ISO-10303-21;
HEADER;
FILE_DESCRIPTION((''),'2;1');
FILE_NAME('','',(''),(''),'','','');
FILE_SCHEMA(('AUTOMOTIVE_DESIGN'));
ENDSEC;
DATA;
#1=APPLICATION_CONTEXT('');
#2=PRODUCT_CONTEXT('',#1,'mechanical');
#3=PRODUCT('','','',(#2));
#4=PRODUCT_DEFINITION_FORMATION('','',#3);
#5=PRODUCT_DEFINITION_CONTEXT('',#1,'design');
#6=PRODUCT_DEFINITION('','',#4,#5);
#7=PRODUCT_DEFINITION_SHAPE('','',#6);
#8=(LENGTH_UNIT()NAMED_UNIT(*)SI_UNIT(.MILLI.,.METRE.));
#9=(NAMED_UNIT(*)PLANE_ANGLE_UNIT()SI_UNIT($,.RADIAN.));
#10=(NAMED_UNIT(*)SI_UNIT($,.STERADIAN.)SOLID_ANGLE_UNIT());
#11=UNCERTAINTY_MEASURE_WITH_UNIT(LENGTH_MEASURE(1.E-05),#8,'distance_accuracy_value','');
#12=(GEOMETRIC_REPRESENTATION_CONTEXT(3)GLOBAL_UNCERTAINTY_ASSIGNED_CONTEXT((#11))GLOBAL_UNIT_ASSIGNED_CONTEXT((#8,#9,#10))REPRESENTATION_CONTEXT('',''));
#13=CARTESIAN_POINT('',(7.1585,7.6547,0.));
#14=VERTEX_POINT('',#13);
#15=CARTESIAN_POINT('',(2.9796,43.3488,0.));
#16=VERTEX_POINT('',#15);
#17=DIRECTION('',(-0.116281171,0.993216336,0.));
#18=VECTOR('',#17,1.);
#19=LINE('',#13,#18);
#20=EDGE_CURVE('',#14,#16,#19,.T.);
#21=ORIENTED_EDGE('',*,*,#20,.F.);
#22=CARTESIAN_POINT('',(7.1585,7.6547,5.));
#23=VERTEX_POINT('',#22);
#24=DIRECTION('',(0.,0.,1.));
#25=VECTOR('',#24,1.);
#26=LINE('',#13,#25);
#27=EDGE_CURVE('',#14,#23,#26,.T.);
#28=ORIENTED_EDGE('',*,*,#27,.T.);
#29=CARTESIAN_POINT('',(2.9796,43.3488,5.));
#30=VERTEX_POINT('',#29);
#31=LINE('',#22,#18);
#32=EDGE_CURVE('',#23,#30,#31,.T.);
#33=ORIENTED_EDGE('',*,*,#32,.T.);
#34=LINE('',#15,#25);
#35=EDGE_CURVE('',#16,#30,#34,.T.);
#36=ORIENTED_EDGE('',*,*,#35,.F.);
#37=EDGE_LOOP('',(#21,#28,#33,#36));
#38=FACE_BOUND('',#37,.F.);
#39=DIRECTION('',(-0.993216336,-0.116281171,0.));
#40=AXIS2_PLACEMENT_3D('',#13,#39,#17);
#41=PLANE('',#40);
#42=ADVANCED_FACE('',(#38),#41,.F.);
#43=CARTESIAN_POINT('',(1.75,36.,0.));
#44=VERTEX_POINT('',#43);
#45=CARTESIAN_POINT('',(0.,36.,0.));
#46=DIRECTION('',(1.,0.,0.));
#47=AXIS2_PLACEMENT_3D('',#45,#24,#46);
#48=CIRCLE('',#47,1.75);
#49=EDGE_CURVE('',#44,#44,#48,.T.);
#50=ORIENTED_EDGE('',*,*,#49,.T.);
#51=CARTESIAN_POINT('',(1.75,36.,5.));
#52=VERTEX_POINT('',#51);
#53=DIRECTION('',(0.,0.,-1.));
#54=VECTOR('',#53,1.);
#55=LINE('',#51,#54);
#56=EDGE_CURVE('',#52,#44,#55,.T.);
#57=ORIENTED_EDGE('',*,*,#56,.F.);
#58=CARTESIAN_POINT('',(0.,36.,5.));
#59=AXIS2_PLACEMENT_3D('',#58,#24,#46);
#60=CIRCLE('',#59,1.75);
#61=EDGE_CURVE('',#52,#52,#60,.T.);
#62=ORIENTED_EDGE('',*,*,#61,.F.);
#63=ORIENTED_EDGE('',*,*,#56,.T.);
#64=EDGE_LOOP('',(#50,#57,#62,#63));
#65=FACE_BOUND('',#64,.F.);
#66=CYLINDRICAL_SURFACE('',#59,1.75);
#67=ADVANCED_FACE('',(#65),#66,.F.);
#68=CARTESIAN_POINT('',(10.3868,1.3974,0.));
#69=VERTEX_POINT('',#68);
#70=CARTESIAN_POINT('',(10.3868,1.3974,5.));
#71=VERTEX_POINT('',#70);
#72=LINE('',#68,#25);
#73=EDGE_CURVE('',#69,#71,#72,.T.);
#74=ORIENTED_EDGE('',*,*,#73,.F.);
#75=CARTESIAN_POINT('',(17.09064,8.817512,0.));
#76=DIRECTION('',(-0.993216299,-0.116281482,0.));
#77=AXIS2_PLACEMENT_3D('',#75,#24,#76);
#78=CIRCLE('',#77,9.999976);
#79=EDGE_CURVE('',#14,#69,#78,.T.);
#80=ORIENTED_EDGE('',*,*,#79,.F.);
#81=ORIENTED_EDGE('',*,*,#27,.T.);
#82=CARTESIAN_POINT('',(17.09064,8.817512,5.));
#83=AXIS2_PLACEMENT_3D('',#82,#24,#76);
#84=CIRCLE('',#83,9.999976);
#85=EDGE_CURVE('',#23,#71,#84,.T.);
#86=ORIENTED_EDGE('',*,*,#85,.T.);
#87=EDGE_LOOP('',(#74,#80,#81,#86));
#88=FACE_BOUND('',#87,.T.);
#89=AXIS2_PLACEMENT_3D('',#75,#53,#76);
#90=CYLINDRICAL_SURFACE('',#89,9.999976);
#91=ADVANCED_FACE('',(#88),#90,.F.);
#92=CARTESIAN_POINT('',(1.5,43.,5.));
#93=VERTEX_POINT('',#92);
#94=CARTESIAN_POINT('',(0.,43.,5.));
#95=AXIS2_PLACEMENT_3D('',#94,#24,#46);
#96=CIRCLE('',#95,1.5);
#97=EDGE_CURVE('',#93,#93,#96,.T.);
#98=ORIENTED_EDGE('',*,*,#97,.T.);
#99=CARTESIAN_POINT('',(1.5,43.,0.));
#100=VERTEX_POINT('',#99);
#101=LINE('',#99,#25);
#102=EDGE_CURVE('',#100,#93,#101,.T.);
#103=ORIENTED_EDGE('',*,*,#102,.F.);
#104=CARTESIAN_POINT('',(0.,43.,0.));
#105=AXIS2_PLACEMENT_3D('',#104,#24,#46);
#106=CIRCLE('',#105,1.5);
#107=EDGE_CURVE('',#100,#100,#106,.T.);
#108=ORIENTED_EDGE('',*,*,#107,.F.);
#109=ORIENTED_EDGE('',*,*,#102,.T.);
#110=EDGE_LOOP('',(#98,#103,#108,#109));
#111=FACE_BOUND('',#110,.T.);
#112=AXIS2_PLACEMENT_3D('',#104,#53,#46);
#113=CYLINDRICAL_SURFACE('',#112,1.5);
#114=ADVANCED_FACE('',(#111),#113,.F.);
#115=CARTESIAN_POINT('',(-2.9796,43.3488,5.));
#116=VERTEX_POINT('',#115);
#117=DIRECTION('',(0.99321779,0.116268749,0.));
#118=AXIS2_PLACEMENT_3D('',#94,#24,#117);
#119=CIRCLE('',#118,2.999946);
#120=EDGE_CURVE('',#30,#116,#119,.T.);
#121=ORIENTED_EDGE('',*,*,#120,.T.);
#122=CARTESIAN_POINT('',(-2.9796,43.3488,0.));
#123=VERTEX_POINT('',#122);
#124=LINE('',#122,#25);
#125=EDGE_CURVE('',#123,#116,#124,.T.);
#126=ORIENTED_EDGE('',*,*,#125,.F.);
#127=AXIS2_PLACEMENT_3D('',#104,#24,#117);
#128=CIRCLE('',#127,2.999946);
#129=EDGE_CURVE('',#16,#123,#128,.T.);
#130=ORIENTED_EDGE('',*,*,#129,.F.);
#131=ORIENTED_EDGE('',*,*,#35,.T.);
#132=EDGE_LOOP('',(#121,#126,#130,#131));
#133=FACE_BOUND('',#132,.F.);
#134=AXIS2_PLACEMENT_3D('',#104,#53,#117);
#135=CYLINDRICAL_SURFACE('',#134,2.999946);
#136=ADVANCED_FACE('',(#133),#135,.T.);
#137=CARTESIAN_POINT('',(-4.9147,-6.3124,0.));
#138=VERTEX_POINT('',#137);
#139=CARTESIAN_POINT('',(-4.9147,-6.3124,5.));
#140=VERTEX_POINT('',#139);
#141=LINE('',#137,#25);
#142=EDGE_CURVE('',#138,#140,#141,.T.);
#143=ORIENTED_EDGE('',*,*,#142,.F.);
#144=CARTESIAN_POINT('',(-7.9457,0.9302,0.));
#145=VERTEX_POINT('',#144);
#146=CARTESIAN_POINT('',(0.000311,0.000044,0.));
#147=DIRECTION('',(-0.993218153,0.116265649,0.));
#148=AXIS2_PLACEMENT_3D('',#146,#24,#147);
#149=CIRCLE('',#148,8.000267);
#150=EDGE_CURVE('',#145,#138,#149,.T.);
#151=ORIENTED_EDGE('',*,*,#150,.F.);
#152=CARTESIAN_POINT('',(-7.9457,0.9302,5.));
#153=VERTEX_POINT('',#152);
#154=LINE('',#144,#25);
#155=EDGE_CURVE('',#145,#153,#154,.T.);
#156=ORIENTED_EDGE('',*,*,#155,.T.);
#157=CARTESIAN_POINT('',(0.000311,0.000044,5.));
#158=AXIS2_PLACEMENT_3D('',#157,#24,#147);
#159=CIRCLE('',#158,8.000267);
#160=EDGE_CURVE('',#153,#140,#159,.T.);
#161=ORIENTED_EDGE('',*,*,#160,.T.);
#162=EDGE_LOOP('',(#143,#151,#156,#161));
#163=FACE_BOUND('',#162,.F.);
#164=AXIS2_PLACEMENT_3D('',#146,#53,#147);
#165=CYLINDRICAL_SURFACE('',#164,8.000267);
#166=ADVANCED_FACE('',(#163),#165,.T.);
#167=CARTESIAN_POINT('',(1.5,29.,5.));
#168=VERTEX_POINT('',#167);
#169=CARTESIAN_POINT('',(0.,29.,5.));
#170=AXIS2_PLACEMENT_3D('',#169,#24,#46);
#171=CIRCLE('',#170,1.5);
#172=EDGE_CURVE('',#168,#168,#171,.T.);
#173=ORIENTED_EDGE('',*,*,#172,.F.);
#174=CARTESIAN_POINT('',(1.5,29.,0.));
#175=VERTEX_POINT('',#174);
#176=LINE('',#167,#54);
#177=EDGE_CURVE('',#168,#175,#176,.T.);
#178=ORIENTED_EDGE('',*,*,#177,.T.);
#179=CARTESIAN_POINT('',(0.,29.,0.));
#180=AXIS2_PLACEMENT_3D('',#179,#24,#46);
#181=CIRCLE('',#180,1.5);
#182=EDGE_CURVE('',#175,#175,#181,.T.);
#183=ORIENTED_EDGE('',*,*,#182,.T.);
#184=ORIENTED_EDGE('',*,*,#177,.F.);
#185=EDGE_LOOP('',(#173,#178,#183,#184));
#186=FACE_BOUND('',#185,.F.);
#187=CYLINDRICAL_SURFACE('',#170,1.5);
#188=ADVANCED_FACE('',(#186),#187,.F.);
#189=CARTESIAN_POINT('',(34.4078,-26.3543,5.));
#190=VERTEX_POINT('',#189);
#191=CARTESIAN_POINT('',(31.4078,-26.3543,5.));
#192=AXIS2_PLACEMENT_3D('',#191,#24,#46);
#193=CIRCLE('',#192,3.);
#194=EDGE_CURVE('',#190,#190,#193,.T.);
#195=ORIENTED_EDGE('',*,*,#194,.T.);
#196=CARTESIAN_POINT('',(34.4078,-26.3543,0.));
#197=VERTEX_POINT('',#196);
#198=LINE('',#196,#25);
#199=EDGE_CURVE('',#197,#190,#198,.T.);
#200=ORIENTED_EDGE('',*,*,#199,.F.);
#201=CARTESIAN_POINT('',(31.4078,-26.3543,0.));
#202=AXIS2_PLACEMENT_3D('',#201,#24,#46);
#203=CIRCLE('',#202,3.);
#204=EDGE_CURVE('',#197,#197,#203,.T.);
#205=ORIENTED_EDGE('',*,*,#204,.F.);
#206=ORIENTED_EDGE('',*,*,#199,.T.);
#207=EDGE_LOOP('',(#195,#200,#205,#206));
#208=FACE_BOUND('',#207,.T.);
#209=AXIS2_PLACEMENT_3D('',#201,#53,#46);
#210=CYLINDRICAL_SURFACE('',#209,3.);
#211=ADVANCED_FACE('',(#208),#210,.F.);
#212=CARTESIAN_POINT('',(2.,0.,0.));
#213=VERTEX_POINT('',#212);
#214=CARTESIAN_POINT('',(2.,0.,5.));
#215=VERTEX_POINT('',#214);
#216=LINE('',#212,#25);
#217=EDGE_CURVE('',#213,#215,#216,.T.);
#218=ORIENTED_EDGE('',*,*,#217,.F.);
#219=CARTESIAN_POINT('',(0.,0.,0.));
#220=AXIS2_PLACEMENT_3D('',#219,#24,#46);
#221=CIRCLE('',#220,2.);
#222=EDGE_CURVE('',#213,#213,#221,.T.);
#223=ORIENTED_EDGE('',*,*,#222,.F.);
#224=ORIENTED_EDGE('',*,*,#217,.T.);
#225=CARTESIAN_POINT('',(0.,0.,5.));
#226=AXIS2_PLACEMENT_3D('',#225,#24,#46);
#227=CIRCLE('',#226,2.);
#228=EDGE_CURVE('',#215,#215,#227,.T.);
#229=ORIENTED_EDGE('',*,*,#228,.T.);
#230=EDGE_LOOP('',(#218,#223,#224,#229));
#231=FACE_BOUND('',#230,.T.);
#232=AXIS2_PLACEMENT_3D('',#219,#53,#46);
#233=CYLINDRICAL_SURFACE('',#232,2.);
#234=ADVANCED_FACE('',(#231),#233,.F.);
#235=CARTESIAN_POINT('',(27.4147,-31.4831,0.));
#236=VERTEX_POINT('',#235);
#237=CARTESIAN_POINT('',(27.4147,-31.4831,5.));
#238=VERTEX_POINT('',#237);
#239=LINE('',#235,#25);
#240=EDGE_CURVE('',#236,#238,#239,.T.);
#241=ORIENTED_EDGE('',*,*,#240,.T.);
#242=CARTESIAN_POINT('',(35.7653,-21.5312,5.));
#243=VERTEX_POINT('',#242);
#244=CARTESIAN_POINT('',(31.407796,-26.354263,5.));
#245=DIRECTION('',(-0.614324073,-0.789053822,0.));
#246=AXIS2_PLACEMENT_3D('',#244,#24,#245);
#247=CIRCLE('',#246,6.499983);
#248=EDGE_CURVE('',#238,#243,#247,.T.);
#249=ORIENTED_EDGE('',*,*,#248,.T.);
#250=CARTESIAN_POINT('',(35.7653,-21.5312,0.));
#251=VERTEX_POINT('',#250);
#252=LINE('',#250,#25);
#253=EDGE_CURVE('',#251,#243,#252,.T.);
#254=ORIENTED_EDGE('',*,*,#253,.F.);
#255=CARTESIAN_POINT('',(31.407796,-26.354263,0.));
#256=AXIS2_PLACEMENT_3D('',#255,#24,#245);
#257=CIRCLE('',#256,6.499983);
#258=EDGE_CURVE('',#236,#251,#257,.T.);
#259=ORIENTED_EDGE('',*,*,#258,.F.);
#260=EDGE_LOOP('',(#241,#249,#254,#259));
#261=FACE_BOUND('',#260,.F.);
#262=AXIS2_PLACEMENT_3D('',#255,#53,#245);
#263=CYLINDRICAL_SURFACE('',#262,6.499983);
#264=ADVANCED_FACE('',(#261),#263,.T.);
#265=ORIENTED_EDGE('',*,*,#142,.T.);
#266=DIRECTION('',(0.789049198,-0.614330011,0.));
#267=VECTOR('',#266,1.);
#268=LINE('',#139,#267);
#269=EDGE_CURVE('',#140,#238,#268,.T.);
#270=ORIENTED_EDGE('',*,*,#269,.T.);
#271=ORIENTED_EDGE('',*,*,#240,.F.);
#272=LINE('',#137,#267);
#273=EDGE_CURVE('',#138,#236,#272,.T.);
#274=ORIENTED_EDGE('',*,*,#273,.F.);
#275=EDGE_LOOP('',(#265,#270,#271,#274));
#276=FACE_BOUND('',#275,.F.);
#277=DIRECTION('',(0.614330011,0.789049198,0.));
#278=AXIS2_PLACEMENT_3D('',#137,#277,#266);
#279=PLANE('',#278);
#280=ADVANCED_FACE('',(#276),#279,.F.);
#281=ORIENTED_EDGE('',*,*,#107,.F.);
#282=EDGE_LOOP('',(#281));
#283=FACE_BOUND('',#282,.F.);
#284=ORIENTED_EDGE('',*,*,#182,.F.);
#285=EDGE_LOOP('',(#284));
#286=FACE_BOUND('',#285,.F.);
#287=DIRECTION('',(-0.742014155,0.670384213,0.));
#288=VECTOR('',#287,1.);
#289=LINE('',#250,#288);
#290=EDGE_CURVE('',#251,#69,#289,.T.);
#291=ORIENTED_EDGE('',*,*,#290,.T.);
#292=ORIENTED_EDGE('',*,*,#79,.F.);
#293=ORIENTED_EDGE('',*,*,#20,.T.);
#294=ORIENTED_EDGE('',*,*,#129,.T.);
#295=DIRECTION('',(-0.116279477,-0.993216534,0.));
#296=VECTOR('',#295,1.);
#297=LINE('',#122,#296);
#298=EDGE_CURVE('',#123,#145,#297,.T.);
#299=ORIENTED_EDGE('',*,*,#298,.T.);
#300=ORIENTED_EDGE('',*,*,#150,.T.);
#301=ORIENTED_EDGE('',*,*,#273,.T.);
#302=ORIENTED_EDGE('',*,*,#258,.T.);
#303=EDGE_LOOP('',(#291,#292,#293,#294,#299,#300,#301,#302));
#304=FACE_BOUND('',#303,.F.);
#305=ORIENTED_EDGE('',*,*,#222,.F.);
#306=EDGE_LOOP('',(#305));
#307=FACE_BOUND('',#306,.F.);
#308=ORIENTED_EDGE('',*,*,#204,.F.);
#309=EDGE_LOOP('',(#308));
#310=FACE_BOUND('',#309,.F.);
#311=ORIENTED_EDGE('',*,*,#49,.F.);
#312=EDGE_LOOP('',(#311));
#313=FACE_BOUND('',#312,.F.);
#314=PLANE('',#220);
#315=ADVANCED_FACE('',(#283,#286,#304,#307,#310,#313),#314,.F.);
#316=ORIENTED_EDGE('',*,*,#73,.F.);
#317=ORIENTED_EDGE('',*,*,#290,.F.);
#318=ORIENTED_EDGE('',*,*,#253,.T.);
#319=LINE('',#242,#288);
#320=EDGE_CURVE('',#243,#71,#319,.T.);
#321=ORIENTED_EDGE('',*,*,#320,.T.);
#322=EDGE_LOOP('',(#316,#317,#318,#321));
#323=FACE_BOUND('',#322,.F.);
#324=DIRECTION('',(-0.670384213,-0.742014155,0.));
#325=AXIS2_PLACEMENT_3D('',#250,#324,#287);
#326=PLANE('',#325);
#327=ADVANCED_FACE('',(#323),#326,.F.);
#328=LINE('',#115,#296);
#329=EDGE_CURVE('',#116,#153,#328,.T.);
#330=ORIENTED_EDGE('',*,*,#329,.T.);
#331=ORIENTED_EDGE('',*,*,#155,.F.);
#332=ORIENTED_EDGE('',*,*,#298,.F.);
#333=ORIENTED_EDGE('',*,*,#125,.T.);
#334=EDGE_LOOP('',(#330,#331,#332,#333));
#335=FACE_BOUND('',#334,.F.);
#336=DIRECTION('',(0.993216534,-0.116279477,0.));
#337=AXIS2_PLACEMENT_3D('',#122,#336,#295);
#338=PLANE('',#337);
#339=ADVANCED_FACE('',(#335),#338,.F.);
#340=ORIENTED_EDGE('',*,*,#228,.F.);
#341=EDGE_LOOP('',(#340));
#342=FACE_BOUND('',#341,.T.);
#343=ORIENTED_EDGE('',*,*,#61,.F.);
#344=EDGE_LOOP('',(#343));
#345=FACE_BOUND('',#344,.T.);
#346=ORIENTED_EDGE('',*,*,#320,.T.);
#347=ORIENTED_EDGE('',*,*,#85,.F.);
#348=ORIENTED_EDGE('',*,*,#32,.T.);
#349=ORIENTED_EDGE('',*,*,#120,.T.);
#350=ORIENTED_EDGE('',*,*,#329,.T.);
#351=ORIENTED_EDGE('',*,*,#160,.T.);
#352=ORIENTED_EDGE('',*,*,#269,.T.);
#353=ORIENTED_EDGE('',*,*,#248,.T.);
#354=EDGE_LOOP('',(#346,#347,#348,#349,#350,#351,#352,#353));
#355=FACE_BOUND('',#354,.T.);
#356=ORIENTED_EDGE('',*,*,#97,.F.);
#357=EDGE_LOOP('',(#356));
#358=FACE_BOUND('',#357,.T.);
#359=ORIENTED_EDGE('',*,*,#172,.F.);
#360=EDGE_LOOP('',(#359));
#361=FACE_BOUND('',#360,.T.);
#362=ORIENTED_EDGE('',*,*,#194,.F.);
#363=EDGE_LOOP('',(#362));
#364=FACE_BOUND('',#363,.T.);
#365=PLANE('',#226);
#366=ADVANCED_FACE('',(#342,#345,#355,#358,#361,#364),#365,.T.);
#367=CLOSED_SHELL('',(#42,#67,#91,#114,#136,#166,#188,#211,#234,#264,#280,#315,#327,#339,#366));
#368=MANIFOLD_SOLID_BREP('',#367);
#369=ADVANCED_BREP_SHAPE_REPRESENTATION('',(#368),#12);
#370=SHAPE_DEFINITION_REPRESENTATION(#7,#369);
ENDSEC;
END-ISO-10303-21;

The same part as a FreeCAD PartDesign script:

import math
import FreeCAD as App
import Part
import Sketcher
from FreeCAD import Vector

doc = App.newDocument("Part")
body = doc.addObject("PartDesign::Body", "Body")

sketch1 = body.newObject("Sketcher::SketchObject", "Sketch")
sketch1.AttachmentSupport = (doc.getObject("XY_Plane"), [""])
sketch1.MapMode = "FlatFace"
sketch1.addGeometry([
    Part.ArcOfCircle(Part.Circle(Vector(0, 43, 0), Vector(0, 0, 1), 2.999946), math.radians(6.67681), math.radians(173.32319)),
    Part.LineSegment(Vector(-2.9796, 43.3488, 0), Vector(-7.9457, 0.9302, 0)),
    Part.ArcOfCircle(Part.Circle(Vector(0, 0, 0), Vector(0, 0, 1), 7.999964), math.radians(173.322799), math.radians(232.096436)),
    Part.LineSegment(Vector(-4.9147, -6.3124, 0), Vector(27.4147, -31.4831, 0)),
    Part.ArcOfCircle(Part.Circle(Vector(31.4078, -26.3543, 0), Vector(0, 0, 1), 6.499957), math.radians(-127.903047), math.radians(47.903305)),
    Part.LineSegment(Vector(35.7653, -21.5312, 0), Vector(10.3868, 1.3974, 0)),
    Part.ArcOfCircle(Part.Circle(Vector(17.0906, 8.8175, 0), Vector(0, 0, 1), 9.999936), math.radians(-173.322498), math.radians(-132.096706)),
    Part.LineSegment(Vector(7.1585, 7.6547, 0), Vector(2.9796, 43.3488, 0)),
    Part.Circle(Vector(0, 0, 0), Vector(0, 0, 1), 2),
    Part.Circle(Vector(31.4078, -26.3543, 0), Vector(0, 0, 1), 3),
    Part.Circle(Vector(0, 43, 0), Vector(0, 0, 1), 1.5),
], False)
sketch1.addConstraint([
    Sketcher.Constraint("Tangent", 0, 2, 1, 1),
    Sketcher.Constraint("Tangent", 1, 2, 2, 1),
    Sketcher.Constraint("Tangent", 2, 2, 3, 1),
    Sketcher.Constraint("Tangent", 3, 2, 4, 1),
    Sketcher.Constraint("Tangent", 4, 2, 5, 1),
    Sketcher.Constraint("Tangent", 5, 2, 6, 2),
    Sketcher.Constraint("Tangent", 6, 1, 7, 1),
    Sketcher.Constraint("Tangent", 7, 2, 0, 1),
    Sketcher.Constraint("Coincident", 2, 3, -1, 1),
    Sketcher.Constraint("Coincident", 8, 3, -1, 1),
    Sketcher.Constraint("Coincident", 9, 3, 4, 3),
    Sketcher.Constraint("Coincident", 10, 3, 0, 3),
    Sketcher.Constraint("Equal", 0, 9),
    Sketcher.Constraint("Symmetric", 0, 2, 7, 2, -2),
    Sketcher.Constraint("Diameter", 8, 4.0),
    Sketcher.Constraint("Diameter", 9, 6.0),
    Sketcher.Constraint("Diameter", 10, 3.0),
    Sketcher.Constraint("Radius", 2, 8.0),
    Sketcher.Constraint("Radius", 6, 10.0),
    Sketcher.Constraint("Radius", 4, 6.5),
    Sketcher.Constraint("DistanceY", -1, 1, 0, 3, 43.0),
    Sketcher.Constraint("DistanceY", 5, 2, 6, 3, 7.42),
    Sketcher.Constraint("Distance", 7, 35.938),
    Sketcher.Constraint("DistanceY", 3, 2, -1, 1, 31.483),
])
pad1 = body.newObject("PartDesign::Pad", "Pad")
pad1.Profile = sketch1
pad1.Length = 5

sketch2 = body.newObject("Sketcher::SketchObject", "Sketch001")
sketch2.AttachmentSupport = (doc.getObject("XY_Plane"), [""])
sketch2.MapMode = "FlatFace"
sketch2.AttachmentOffset = App.Placement(Vector(0, 0, 5), App.Rotation())
sketch2.addGeometry([
    Part.Circle(Vector(0, 36, 0), Vector(0, 0, 1), 1.75),
    Part.Circle(Vector(0, 29, 0), Vector(0, 0, 1), 1.5),
], False)
sketch2.addConstraint([
    Sketcher.Constraint("PointOnObject", 0, 3, -2),
    Sketcher.Constraint("PointOnObject", 1, 3, -2),
    Sketcher.Constraint("Diameter", 1, 3.0),
    Sketcher.Constraint("Diameter", 0, 3.5),
    Sketcher.Constraint("DistanceY", 1, 3, 0, 3, 7.0),
    Sketcher.Constraint("DistanceY", -1, 1, 0, 3, 36.0),
])
pocket1 = body.newObject("PartDesign::Pocket", "Pocket")
pocket1.Profile = sketch2
pocket1.Length = 10

doc.recompute()
